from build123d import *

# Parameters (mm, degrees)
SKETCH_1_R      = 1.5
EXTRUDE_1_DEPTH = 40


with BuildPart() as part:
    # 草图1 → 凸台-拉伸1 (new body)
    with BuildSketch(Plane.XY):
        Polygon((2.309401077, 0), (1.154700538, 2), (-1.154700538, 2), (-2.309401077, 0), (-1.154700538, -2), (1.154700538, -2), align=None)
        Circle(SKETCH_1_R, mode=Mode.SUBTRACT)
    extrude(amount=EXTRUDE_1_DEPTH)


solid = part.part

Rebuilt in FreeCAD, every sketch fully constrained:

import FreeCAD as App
import Part
import Sketcher
Q = App.Units.Quantity

doc = App.newDocument("Part")
params = doc.addObject("Spreadsheet::Sheet", "Params")
for row, (alias, value) in enumerate([
    ("sketch1_diameter", "3 mm"),
    ("pad1_length", "40 mm"),
], start=1):
    params.set(f"A{row}", alias)
    params.set(f"B{row}", "=" + value)
    params.setAlias(f"B{row}", alias)

body = doc.addObject("PartDesign::Body", "Body")

# Sketch on XY plane
sketch1 = body.newObject("Sketcher::SketchObject", "Sketch")
sketch1.AttachmentSupport = (doc.getObject("XY_Plane"), [""])
sketch1.MapMode = "FlatFace"
sketch1.addGeometry(Part.LineSegment(App.Vector(2.3, 0, 0), App.Vector(1.2, 2, 0)), False)
sketch1.addGeometry(Part.LineSegment(App.Vector(1.2, 2, 0), App.Vector(-1.2, 2, 0)), False)
sketch1.addGeometry(Part.LineSegment(App.Vector(-1.2, 2, 0), App.Vector(-2.3, 0, 0)), False)
sketch1.addGeometry(Part.LineSegment(App.Vector(-2.3, 0, 0), App.Vector(-1.2, -2, 0)), False)
sketch1.addGeometry(Part.LineSegment(App.Vector(-1.2, -2, 0), App.Vector(1.2, -2, 0)), False)
sketch1.addGeometry(Part.LineSegment(App.Vector(1.2, -2, 0), App.Vector(2.3, 0, 0)), False)
sketch1.addGeometry(Part.Circle(App.Vector(0, 0, 0), App.Vector(0, 0, 1), 1.5), False)
sketch1.addConstraint(Sketcher.Constraint("Coincident", 0, 2, 1, 1))
sketch1.addConstraint(Sketcher.Constraint("Coincident", 1, 2, 2, 1))
sketch1.addConstraint(Sketcher.Constraint("Coincident", 2, 2, 3, 1))
sketch1.addConstraint(Sketcher.Constraint("Coincident", 3, 2, 4, 1))
sketch1.addConstraint(Sketcher.Constraint("Coincident", 4, 2, 5, 1))
sketch1.addConstraint(Sketcher.Constraint("Coincident", 5, 2, 0, 1))
sketch1.addConstraint(Sketcher.Constraint("Horizontal", 1))
sketch1.addConstraint(Sketcher.Constraint("Horizontal", 4))
sketch1.addConstraint(Sketcher.Constraint("Coincident", 6, 3, -1, 1))
sketch1.addConstraint(Sketcher.Constraint("Symmetric", 0, 2, 3, 2, -1, 1))
sketch1.addConstraint(Sketcher.Constraint("Symmetric", 2, 2, 5, 2, -1, 1))
sketch1.addConstraint(Sketcher.Constraint("PointOnObject", 2, 2, -1))
sketch1.addConstraint(Sketcher.Constraint("Parallel", 2, 5))
sketch1.addConstraint(Sketcher.Constraint("Vertical", 1, 2, 3, 2))
sketch1.addConstraint(Sketcher.Constraint("Diameter", 6, 3.0))
sketch1.addConstraint(Sketcher.Constraint("Angle", 0, Q("120 deg")))
sketch1.addConstraint(Sketcher.Constraint("DistanceY", -1, 1, 0, 2, 2.0))
sketch1.addConstraint(Sketcher.Constraint("DistanceX", 1, 2, 1, 1, 2.309401))
sketch1.setExpression("Constraints[14]", "Params.sketch1_diameter")
pad1 = body.newObject("PartDesign::Pad", "Pad")
pad1.Profile = sketch1
pad1.setExpression("Length", "Params.pad1_length")

doc.recompute()
